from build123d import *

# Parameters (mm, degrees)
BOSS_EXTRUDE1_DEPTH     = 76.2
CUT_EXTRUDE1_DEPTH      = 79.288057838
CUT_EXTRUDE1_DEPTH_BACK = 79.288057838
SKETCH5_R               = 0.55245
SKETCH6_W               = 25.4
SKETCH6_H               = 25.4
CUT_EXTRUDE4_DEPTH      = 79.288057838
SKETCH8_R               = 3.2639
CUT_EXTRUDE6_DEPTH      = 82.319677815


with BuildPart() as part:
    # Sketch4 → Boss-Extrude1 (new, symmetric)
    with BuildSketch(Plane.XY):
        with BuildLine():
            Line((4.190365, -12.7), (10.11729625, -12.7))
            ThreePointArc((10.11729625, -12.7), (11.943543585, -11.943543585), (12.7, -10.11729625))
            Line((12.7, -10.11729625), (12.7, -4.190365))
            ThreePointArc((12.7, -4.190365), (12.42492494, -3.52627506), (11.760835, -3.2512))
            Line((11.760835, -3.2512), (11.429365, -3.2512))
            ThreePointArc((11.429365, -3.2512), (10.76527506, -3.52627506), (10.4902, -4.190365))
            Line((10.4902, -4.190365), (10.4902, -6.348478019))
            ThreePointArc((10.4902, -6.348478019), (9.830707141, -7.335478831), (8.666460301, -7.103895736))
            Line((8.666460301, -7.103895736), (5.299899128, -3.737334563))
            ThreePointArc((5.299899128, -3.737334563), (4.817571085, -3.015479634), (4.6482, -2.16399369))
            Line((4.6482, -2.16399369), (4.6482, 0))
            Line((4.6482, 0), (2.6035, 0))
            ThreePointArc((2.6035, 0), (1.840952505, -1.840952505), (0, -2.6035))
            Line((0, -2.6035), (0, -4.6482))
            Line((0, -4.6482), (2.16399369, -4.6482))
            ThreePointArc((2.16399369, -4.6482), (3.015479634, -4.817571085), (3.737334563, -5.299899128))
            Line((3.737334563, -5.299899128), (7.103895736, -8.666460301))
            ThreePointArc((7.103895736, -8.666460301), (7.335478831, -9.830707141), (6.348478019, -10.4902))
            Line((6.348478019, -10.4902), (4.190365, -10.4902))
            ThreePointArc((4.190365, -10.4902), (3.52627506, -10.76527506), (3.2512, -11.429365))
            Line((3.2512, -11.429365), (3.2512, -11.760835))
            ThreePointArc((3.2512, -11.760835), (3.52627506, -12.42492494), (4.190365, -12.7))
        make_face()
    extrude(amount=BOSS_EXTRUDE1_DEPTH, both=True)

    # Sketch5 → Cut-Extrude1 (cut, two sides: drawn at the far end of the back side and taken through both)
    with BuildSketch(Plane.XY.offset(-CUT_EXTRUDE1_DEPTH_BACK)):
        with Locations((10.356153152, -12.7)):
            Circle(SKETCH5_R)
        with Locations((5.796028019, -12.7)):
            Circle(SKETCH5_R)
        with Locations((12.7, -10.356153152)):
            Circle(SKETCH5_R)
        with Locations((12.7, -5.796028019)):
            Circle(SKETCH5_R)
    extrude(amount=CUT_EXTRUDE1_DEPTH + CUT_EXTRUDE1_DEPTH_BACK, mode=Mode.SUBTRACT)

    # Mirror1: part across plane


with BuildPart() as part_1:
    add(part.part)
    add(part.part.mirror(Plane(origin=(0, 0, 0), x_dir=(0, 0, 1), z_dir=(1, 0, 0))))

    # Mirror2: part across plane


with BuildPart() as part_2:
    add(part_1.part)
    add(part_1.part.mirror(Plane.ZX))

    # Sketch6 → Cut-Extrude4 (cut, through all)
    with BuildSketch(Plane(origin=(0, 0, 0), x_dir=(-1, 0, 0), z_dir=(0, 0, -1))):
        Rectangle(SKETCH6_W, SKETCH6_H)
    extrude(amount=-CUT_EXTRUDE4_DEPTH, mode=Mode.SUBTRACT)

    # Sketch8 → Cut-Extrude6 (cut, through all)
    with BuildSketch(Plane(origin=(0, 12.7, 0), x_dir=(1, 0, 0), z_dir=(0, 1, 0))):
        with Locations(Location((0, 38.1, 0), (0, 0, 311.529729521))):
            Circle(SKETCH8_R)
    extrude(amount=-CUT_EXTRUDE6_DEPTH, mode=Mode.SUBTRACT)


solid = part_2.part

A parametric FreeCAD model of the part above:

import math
import FreeCAD as App
import Part
import Sketcher

V = App.Vector
Q = App.Units.Quantity


def add_polygon(sketch, points):
    """Adds a closed chain of lines whose ends are joined by coincident constraints."""
    first, n = sketch.GeometryCount, len(points)
    for a, b in zip(points, points[1:] + points[:1]):
        sketch.addGeometry(Part.LineSegment(App.Vector(*a, 0), App.Vector(*b, 0)), False)
    for i in range(n):
        sketch.addConstraint(Sketcher.Constraint("Coincident", first + i, 2, first + (i + 1) % n, 1))

doc = App.newDocument("Part")
body = doc.addObject("PartDesign::Body", "Body")

# Sketch on XY plane
sketch1 = doc.addObject("Sketcher::SketchObject", "Sketch")
body.addObject(sketch1)
sketch1.AttachmentSupport = (doc.XY_Plane, [""])
sketch1.MapMode = "FlatFace"
sketch1.addGeometry(Part.LineSegment(V(4.190365, -12.7, 0), V(10.117296, -12.7, 0)), False)
sketch1.addGeometry(Part.ArcOfCircle(Part.Circle(V(10.117296, -10.117296, 0), V(0, 0, 1), 2.582704), math.radians(-90), math.radians(0)), False)
sketch1.addGeometry(Part.LineSegment(V(12.7, -10.117296, 0), V(12.7, -4.190365, 0)), False)
sketch1.addGeometry(Part.ArcOfCircle(Part.Circle(V(11.760835, -4.190365, 0), V(0, 0, 1), 0.939165), math.radians(0), math.radians(90)), False)
sketch1.addGeometry(Part.LineSegment(V(11.760835, -3.2512, 0), V(11.429365, -3.2512, 0)), False)
sketch1.addGeometry(Part.ArcOfCircle(Part.Circle(V(11.429365, -4.190365, 0), V(0, 0, 1), 0.939165), math.radians(90), math.radians(180)), False)
sketch1.addGeometry(Part.LineSegment(V(10.4902, -4.190365, 0), V(10.4902, -6.348478, 0)), False)
sketch1.addGeometry(Part.ArcOfCircle(Part.Circle(V(9.421878, -6.348478, 0), V(0, 0, 1), 1.068322), math.radians(-135), math.radians(0)), False)
sketch1.addGeometry(Part.LineSegment(V(8.66646, -7.103896, 0), V(5.299899, -3.737335, 0)), False)
sketch1.addGeometry(Part.ArcOfCircle(Part.Circle(V(6.87324, -2.163994, 0), V(0, 0, 1), 2.22504), math.radians(-180), math.radians(-135)), False)
sketch1.addGeometry(Part.LineSegment(V(4.6482, -2.163994, 0), V(4.6482, 0, 0)), False)
sketch1.addGeometry(Part.LineSegment(V(4.6482, 0, 0), V(2.6035, 0, 0)), False)
sketch1.addGeometry(Part.ArcOfCircle(Part.Circle(V(0, 0, 0), V(0, 0, 1), 2.6035), math.radians(-90), math.radians(0)), False)
sketch1.addGeometry(Part.LineSegment(V(0, -2.6035, 0), V(0, -4.6482, 0)), False)
sketch1.addGeometry(Part.LineSegment(V(0, -4.6482, 0), V(2.163994, -4.6482, 0)), False)
sketch1.addGeometry(Part.ArcOfCircle(Part.Circle(V(2.163994, -6.87324, 0), V(0, 0, 1), 2.22504), math.radians(45), math.radians(90)), False)
sketch1.addGeometry(Part.LineSegment(V(3.737335, -5.299899, 0), V(7.103896, -8.66646, 0)), False)
sketch1.addGeometry(Part.ArcOfCircle(Part.Circle(V(6.348478, -9.421878, 0), V(0, 0, 1), 1.068322), math.radians(-90), math.radians(45)), False)
sketch1.addGeometry(Part.LineSegment(V(6.348478, -10.4902, 0), V(4.190365, -10.4902, 0)), False)
sketch1.addGeometry(Part.ArcOfCircle(Part.Circle(V(4.190365, -11.429365, 0), V(0, 0, 1), 0.939165), math.radians(90), math.radians(180)), False)
sketch1.addGeometry(Part.LineSegment(V(3.2512, -11.429365, 0), V(3.2512, -11.760835, 0)), False)
sketch1.addGeometry(Part.ArcOfCircle(Part.Circle(V(4.190365, -11.760835, 0), V(0, 0, 1), 0.939165), math.radians(-180), math.radians(-90)), False)
sketch1.addConstraint(Sketcher.Constraint("Tangent", 0, 2, 1, 1))
sketch1.addConstraint(Sketcher.Constraint("Tangent", 1, 2, 2, 1))
sketch1.addConstraint(Sketcher.Constraint("Tangent", 2, 2, 3, 1))
sketch1.addConstraint(Sketcher.Constraint("Tangent", 3, 2, 4, 1))
sketch1.addConstraint(Sketcher.Constraint("Tangent", 4, 2, 5, 1))
sketch1.addConstraint(Sketcher.Constraint("Tangent", 5, 2, 6, 1))
sketch1.addConstraint(Sketcher.Constraint("Tangent", 6, 2, 7, 2))
sketch1.addConstraint(Sketcher.Constraint("Tangent", 7, 1, 8, 1))
sketch1.addConstraint(Sketcher.Constraint("Tangent", 8, 2, 9, 2))
sketch1.addConstraint(Sketcher.Constraint("Tangent", 9, 1, 10, 1))
sketch1.addConstraint(Sketcher.Constraint("Coincident", 10, 2, 11, 1))
sketch1.addConstraint(Sketcher.Constraint("Coincident", 11, 2, 12, 2))
sketch1.addConstraint(Sketcher.Constraint("Coincident", 12, 1, 13, 1))
sketch1.addConstraint(Sketcher.Constraint("Coincident", 13, 2, 14, 1))
sketch1.addConstraint(Sketcher.Constraint("Tangent", 14, 2, 15, 2))
sketch1.addConstraint(Sketcher.Constraint("Tangent", 15, 1, 16, 1))
sketch1.addConstraint(Sketcher.Constraint("Tangent", 16, 2, 17, 2))
sketch1.addConstraint(Sketcher.Constraint("Tangent", 17, 1, 18, 1))
sketch1.addConstraint(Sketcher.Constraint("Tangent", 18, 2, 19, 1))
sketch1.addConstraint(Sketcher.Constraint("Tangent", 19, 2, 20, 1))
sketch1.addConstraint(Sketcher.Constraint("Tangent", 20, 2, 21, 1))
sketch1.addConstraint(Sketcher.Constraint("Tangent", 21, 2, 0, 1))
sketch1.addConstraint(Sketcher.Constraint("Horizontal", 0))
sketch1.addConstraint(Sketcher.Constraint("Vertical", 2))
sketch1.addConstraint(Sketcher.Constraint("Horizontal", 4))
sketch1.addConstraint(Sketcher.Constraint("Vertical", 6))
sketch1.addConstraint(Sketcher.Constraint("Vertical", 10))
sketch1.addConstraint(Sketcher.Constraint("Horizontal", 11))
sketch1.addConstraint(Sketcher.Constraint("Vertical", 13))
sketch1.addConstraint(Sketcher.Constraint("Horizontal", 14))
sketch1.addConstraint(Sketcher.Constraint("Horizontal", 18))
sketch1.addConstraint(Sketcher.Constraint("Vertical", 20))
sketch1.addConstraint(Sketcher.Constraint("Coincident", 12, 3, -1, 1))
sketch1.addConstraint(Sketcher.Constraint("Equal", 3, 5))
sketch1.addConstraint(Sketcher.Constraint("Equal", 9, 15))
sketch1.addConstraint(Sketcher.Constraint("Equal", 7, 17))
sketch1.addConstraint(Sketcher.Constraint("Equal", 5, 19))
sketch1.addConstraint(Sketcher.Constraint("Equal", 19, 21))
sketch1.addConstraint(Sketcher.Constraint("PointOnObject", 10, 2, -1))
sketch1.addConstraint(Sketcher.Constraint("PointOnObject", 12, 1, -2))
sketch1.addConstraint(Sketcher.Constraint("Parallel", 8, 16))
sketch1.addConstraint(Sketcher.Constraint("Equal", 0, 2))
sketch1.addConstraint(Sketcher.Constraint("Equal", 18, 6))
sketch1.addConstraint(Sketcher.Constraint("Equal", 14, 10))
sketch1.addConstraint(Sketcher.Constraint("Equal", 11, 13))
sketch1.addConstraint(Sketcher.Constraint("Equal", 4, 20))
sketch1.addConstraint(Sketcher.Constraint("Equal", 8, 16))
sketch1.addConstraint(Sketcher.Constraint("DistanceY", 0, 2, -1, 1, Q("0.5 in")))
sketch1.addConstraint(Sketcher.Constraint("Radius", 9, Q("0.0876 in")))
sketch1.addConstraint(Sketcher.Constraint("Radius", 12, Q("0.1025 in")))
sketch1.addConstraint(Sketcher.Constraint("DistanceX", 9, 1, 5, 2, Q("0.23 in")))
sketch1.addConstraint(Sketcher.Constraint("DistanceX", 11, 2, 11, 1, Q("0.0805 in")))
sketch1.addConstraint(Sketcher.Constraint("DistanceY", 3, 2, -1, 1, Q("0.128 in")))
sketch1.addConstraint(Sketcher.Constraint("Radius", 7, 1.068322))
sketch1.addConstraint(Sketcher.Constraint("DistanceX", 17, 3, 7, 3, Q("0.121 in")))
sketch1.addConstraint(Sketcher.Constraint("Radius", 1, 2.582704))
sketch1.addConstraint(Sketcher.Constraint("Radius", 3, 0.939165))
pad1 = doc.addObject("PartDesign::Pad", "Pad")
body.addObject(pad1)
pad1.Profile = sketch1
pad1.Length = Q("6 in")
pad1.Midplane = True

# Sketch on XY plane
sketch2 = doc.addObject("Sketcher::SketchObject", "Sketch001")
body.addObject(sketch2)
sketch2.AttachmentSupport = (doc.XY_Plane, [""])
sketch2.MapMode = "FlatFace"
sketch2.addGeometry(Part.Circle(V(10.356153, -12.7, 0), V(0, 0, 1), 0.55245), False)
sketch2.addGeometry(Part.Circle(V(5.796028, -12.7, 0), V(0, 0, 1), 0.55245), False)
sketch2.addGeometry(Part.Circle(V(12.7, -10.356153, 0), V(0, 0, 1), 0.55245), False)
sketch2.addGeometry(Part.Circle(V(12.7, -5.796028, 0), V(0, 0, 1), 0.55245), False)
sketch2.addConstraint(Sketcher.Constraint("Equal", 0, 1))
sketch2.addConstraint(Sketcher.Constraint("Equal", 1, 2))
sketch2.addConstraint(Sketcher.Constraint("Equal", 2, 3))
sketch2.addConstraint(Sketcher.Constraint("Horizontal", 0, 3, 1, 3))
sketch2.addConstraint(Sketcher.Constraint("Vertical", 2, 3, 3, 3))
sketch2.addConstraint(Sketcher.Constraint("Diameter", 0, Q("0.0435 in")))
sketch2.addConstraint(Sketcher.Constraint("DistanceY", 0, 3, -1, 1, Q("0.5 in")))
sketch2.addConstraint(Sketcher.Constraint("DistanceX", -1, 1, 2, 3, Q("0.5 in")))
sketch2.addConstraint(Sketcher.Constraint("DistanceX", -1, 1, 1, 3, 5.796028))
sketch2.addConstraint(Sketcher.Constraint("DistanceY", 3, 3, -1, 1, 5.796028))
sketch2.addConstraint(Sketcher.Constraint("DistanceX", -1, 1, 0, 3, 10.356153))
sketch2.addConstraint(Sketcher.Constraint("DistanceY", 2, 3, -1, 1, 10.356153))
pocket1 = doc.addObject("PartDesign::Pocket", "Pocket")
body.addObject(pocket1)
pocket1.Profile = sketch2
pocket1.Type = "ThroughAll"
pocket1.Midplane = True
body2 = doc.addObject("PartDesign::Body", "Body001")
doc.recompute()

body2.BaseFeature = body
doc.recompute()

mirroring = doc.addObject("Part::Mirroring", "Mirroring")
mirroring.Source = body
mirroring.Base = V(0, 0, 0)
mirroring.Normal = V(1, 0, 0)
body3 = doc.addObject("PartDesign::Body", "Body002")
body3.BaseFeature = mirroring
boolean = doc.addObject("PartDesign::Boolean", "Boolean")
body2.addObject(boolean)
boolean.Type = "Fuse"
boolean.addObjects([body3])
doc.recompute()
body4 = doc.addObject("PartDesign::Body", "Body003")
doc.recompute()

body4.BaseFeature = body2
doc.recompute()

mirroring2 = doc.addObject("Part::Mirroring", "Mirroring001")
mirroring2.Source = body2
mirroring2.Base = V(0, 0, 0)
mirroring2.Normal = V(0, 1, 0)
body5 = doc.addObject("PartDesign::Body", "Body004")
body5.BaseFeature = mirroring2
boolean2 = doc.addObject("PartDesign::Boolean", "Boolean001")
body4.addObject(boolean2)
boolean2.Type = "Fuse"
boolean2.addObjects([body5])
doc.recompute()

# Sketch on XY plane
sketch3 = doc.addObject("Sketcher::SketchObject", "Sketch002")
body4.addObject(sketch3)
sketch3.AttachmentSupport = (doc.getObject("XY_Plane003"), [""])
sketch3.MapMode = "FlatFace"
add_polygon(sketch3, [(12.7, 12.7), (12.7, -12.7), (-12.7, -12.7), (-12.7, 12.7)])  # lines 0-3
sketch3.addConstraint(Sketcher.Constraint("Vertical", 0))
sketch3.addConstraint(Sketcher.Constraint("Horizontal", 1))
sketch3.addConstraint(Sketcher.Constraint("Vertical", 2))
sketch3.addConstraint(Sketcher.Constraint("Horizontal", 3))
sketch3.addConstraint(Sketcher.Constraint("Symmetric", 0, 2, 2, 2, -1, 1))
sketch3.addConstraint(Sketcher.Constraint("Equal", 3, 0))
sketch3.addConstraint(Sketcher.Constraint("DistanceX", 1, 2, 1, 1, Q("1 in")))
pocket2 = doc.addObject("PartDesign::Pocket", "Pocket001")
body4.addObject(pocket2)
pocket2.Profile = sketch3
pocket2.Type = "ThroughAll"
pocket2.Reversed = True

# Sketch on XZ plane
sketch4 = doc.addObject("Sketcher::SketchObject", "Sketch003")
body4.addObject(sketch4)
sketch4.AttachmentSupport = (doc.getObject("XZ_Plane003"), [""])
sketch4.MapMode = "FlatFace"
sketch4.AttachmentOffset = App.Placement(V(0, 0, -0.5 * 25.4), App.Rotation())
sketch4.addGeometry(Part.Circle(V(0, -38.1, 0), V(0, 0, 1), 3.2639), False)
sketch4.addConstraint(Sketcher.Constraint("PointOnObject", 0, 3, -2))
sketch4.addConstraint(Sketcher.Constraint("Diameter", 0, Q("0.257 in")))
sketch4.addConstraint(Sketcher.Constraint("DistanceY", 0, 3, -1, 1, Q("1.5 in")))
pocket3 = doc.addObject("PartDesign::Pocket", "Pocket002")
body4.addObject(pocket3)
pocket3.Profile = sketch4
pocket3.Type = "ThroughAll"
pocket3.Reversed = True
mirroring.Visibility = False
mirroring2.Visibility = False

doc.recompute()
